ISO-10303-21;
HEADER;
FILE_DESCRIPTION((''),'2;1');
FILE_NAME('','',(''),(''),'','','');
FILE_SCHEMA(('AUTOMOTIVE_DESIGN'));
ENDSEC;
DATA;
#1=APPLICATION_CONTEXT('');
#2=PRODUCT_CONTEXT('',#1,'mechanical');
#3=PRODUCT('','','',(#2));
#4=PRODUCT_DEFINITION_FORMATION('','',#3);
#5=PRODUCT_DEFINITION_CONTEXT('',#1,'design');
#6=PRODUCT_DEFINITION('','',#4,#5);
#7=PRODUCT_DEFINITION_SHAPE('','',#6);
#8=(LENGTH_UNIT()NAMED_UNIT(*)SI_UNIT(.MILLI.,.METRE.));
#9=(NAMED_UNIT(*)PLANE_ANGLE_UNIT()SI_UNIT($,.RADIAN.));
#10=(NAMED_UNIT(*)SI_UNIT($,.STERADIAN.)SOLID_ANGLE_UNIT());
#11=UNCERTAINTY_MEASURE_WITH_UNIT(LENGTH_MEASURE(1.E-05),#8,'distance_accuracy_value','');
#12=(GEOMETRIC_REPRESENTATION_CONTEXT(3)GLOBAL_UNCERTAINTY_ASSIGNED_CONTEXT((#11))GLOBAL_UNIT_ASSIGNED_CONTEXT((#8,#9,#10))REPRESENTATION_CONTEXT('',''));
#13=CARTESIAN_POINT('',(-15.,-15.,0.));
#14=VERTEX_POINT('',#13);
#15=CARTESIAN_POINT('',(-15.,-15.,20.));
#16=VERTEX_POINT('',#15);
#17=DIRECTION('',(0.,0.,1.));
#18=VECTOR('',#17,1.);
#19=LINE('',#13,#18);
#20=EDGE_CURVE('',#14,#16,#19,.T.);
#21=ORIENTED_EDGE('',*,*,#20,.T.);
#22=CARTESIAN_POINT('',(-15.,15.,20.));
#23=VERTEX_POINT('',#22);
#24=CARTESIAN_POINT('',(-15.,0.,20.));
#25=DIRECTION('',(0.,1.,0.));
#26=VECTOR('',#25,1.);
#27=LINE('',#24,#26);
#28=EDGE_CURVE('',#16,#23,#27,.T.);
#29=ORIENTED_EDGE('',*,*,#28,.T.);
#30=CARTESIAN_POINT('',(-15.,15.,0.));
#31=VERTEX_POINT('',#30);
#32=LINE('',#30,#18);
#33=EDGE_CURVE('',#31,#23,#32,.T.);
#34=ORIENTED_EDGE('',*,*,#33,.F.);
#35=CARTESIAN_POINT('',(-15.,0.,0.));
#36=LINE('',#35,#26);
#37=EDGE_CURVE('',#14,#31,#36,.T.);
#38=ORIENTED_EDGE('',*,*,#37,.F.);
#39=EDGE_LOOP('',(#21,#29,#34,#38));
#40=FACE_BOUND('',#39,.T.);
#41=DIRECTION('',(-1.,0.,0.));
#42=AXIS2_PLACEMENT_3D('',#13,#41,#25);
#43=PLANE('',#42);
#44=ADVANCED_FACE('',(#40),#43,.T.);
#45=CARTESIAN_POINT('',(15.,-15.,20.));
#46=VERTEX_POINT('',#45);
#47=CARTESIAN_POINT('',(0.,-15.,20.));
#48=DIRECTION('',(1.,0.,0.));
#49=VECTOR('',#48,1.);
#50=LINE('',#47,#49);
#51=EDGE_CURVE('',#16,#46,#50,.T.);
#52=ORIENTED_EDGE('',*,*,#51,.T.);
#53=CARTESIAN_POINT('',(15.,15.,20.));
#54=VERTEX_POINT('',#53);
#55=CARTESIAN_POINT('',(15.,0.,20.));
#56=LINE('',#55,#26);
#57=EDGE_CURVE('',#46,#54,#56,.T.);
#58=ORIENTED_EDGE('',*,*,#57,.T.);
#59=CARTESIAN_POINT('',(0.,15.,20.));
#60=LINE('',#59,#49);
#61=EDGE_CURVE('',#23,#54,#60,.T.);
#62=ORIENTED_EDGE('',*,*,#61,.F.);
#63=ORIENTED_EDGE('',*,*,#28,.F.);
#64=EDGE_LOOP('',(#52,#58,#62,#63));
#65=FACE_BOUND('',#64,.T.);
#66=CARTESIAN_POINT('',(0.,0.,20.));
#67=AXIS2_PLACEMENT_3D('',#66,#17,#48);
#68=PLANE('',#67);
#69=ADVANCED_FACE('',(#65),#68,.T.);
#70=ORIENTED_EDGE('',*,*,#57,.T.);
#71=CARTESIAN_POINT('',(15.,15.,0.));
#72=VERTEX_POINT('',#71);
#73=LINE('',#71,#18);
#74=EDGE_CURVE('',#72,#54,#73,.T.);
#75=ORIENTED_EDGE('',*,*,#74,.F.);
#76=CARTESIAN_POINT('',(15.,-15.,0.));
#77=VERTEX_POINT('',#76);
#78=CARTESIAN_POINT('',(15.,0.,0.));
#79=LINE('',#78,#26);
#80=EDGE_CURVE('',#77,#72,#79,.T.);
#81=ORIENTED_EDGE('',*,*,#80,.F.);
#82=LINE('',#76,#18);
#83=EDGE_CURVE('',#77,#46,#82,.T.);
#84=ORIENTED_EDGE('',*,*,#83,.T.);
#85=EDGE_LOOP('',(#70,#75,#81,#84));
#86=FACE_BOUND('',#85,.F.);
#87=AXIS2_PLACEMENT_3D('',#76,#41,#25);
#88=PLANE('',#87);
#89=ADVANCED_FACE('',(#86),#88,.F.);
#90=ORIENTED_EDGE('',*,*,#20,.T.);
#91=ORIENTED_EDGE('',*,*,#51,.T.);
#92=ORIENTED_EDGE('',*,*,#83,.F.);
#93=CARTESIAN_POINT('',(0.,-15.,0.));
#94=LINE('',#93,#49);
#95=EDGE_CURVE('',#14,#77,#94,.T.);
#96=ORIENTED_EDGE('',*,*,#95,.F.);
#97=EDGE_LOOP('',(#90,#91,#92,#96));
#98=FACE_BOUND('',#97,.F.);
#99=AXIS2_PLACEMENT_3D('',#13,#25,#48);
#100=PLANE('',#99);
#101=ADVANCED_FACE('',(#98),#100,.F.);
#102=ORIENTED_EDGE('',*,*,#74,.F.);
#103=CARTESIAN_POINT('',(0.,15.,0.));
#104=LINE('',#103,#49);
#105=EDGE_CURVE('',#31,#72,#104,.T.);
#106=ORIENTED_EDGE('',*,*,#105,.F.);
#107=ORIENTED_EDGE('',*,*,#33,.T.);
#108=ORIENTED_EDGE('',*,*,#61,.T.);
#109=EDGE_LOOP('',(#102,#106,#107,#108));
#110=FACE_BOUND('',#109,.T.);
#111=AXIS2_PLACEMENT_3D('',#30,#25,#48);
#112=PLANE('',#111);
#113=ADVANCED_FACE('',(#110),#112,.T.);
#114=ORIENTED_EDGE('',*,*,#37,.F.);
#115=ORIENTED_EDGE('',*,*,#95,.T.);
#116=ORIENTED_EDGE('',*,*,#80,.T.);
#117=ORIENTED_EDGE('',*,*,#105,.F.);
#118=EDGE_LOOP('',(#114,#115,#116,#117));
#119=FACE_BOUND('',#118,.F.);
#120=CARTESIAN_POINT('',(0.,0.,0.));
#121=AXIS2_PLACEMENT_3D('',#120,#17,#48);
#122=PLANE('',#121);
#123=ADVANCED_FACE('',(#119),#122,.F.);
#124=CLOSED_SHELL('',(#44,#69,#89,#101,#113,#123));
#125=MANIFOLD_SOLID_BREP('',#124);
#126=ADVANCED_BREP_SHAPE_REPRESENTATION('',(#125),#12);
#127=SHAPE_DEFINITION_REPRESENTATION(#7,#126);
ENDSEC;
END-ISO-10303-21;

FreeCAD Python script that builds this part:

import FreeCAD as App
import Part
import Sketcher

V = App.Vector

doc = App.newDocument("Part")
body = doc.addObject("PartDesign::Body", "Body")

# Sketch on XY plane
sketch1 = doc.addObject("Sketcher::SketchObject", "Sketch")
body.addObject(sketch1)
sketch1.AttachmentSupport = (doc.XY_Plane, [""])
sketch1.MapMode = "FlatFace"
sketch1.addGeometry(Part.LineSegment(V(-15, 15, 0), V(-15, -15, 0)), False)
sketch1.addGeometry(Part.LineSegment(V(-15, -15, 0), V(15, -15, 0)), False)
sketch1.addGeometry(Part.LineSegment(V(15, -15, 0), V(15, 15, 0)), False)
sketch1.addGeometry(Part.LineSegment(V(15, 15, 0), V(-15, 15, 0)), False)
sketch1.addConstraint(Sketcher.Constraint("Coincident", 0, 2, 1, 1))
sketch1.addConstraint(Sketcher.Constraint("Coincident", 1, 2, 2, 1))
sketch1.addConstraint(Sketcher.Constraint("Coincident", 2, 2, 3, 1))
sketch1.addConstraint(Sketcher.Constraint("Coincident", 3, 2, 0, 1))
sketch1.addConstraint(Sketcher.Constraint("Vertical", 0))
sketch1.addConstraint(Sketcher.Constraint("Horizontal", 1))
sketch1.addConstraint(Sketcher.Constraint("Vertical", 2))
sketch1.addConstraint(Sketcher.Constraint("Horizontal", 3))
sketch1.addConstraint(Sketcher.Constraint("Symmetric", 0, 2, 2, 2, -1, 1))
sketch1.addConstraint(Sketcher.Constraint("Equal", 3, 0))
sketch1.addConstraint(Sketcher.Constraint("DistanceX", 1, 1, 1, 2, 30.0))
pad1 = doc.addObject("PartDesign::Pad", "Pad")
body.addObject(pad1)
pad1.Profile = sketch1
pad1.Length = 20

doc.recompute()
